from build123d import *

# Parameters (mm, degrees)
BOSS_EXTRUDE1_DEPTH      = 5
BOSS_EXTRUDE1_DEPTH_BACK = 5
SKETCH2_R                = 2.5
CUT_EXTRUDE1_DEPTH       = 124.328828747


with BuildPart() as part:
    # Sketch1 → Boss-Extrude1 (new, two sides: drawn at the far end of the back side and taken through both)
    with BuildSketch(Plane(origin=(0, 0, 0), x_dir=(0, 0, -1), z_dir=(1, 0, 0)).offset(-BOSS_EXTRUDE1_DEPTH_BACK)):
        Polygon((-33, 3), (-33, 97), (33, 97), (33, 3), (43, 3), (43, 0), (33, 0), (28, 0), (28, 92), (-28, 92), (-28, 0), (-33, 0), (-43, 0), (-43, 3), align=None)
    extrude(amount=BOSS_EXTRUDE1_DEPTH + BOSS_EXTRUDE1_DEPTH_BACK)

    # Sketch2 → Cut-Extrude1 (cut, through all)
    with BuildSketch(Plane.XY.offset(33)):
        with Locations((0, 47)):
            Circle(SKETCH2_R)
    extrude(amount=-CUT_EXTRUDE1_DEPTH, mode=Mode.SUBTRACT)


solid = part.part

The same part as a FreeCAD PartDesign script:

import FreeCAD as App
import Part
import Sketcher

V = App.Vector

doc = App.newDocument("Part")
body = doc.addObject("PartDesign::Body", "Body")

# Sketch on YZ plane
sketch1 = doc.addObject("Sketcher::SketchObject", "Sketch")
body.addObject(sketch1)
sketch1.AttachmentSupport = (doc.YZ_Plane, [""])
sketch1.MapMode = "FlatFace"
sketch1.addGeometry(Part.LineSegment(V(97, 33, 0), V(3, 33, 0)), False)
sketch1.addGeometry(Part.LineSegment(V(3, 33, 0), V(3, 43, 0)), False)
sketch1.addGeometry(Part.LineSegment(V(3, 43, 0), V(0, 43, 0)), False)
sketch1.addGeometry(Part.LineSegment(V(0, 43, 0), V(0, 28, 0)), False)
sketch1.addGeometry(Part.LineSegment(V(0, 28, 0), V(92, 28, 0)), False)
sketch1.addGeometry(Part.LineSegment(V(92, 28, 0), V(92, -28, 0)), False)
sketch1.addGeometry(Part.LineSegment(V(92, -28, 0), V(0, -28, 0)), False)
sketch1.addGeometry(Part.LineSegment(V(0, -28, 0), V(0, -43, 0)), False)
sketch1.addGeometry(Part.LineSegment(V(0, -43, 0), V(3, -43, 0)), False)
sketch1.addGeometry(Part.LineSegment(V(3, -43, 0), V(3, -33, 0)), False)
sketch1.addGeometry(Part.LineSegment(V(3, -33, 0), V(97, -33, 0)), False)
sketch1.addGeometry(Part.LineSegment(V(97, -33, 0), V(97, 33, 0)), False)
sketch1.addConstraint(Sketcher.Constraint("Coincident", 0, 2, 1, 1))
sketch1.addConstraint(Sketcher.Constraint("Coincident", 1, 2, 2, 1))
sketch1.addConstraint(Sketcher.Constraint("Coincident", 2, 2, 3, 1))
sketch1.addConstraint(Sketcher.Constraint("Coincident", 3, 2, 4, 1))
sketch1.addConstraint(Sketcher.Constraint("Coincident", 4, 2, 5, 1))
sketch1.addConstraint(Sketcher.Constraint("Coincident", 5, 2, 6, 1))
sketch1.addConstraint(Sketcher.Constraint("Coincident", 6, 2, 7, 1))
sketch1.addConstraint(Sketcher.Constraint("Coincident", 7, 2, 8, 1))
sketch1.addConstraint(Sketcher.Constraint("Coincident", 8, 2, 9, 1))
sketch1.addConstraint(Sketcher.Constraint("Coincident", 9, 2, 10, 1))
sketch1.addConstraint(Sketcher.Constraint("Coincident", 10, 2, 11, 1))
sketch1.addConstraint(Sketcher.Constraint("Coincident", 11, 2, 0, 1))
sketch1.addConstraint(Sketcher.Constraint("Horizontal", 0))
sketch1.addConstraint(Sketcher.Constraint("Vertical", 1))
sketch1.addConstraint(Sketcher.Constraint("Horizontal", 2))
sketch1.addConstraint(Sketcher.Constraint("Vertical", 3))
sketch1.addConstraint(Sketcher.Constraint("Horizontal", 4))
sketch1.addConstraint(Sketcher.Constraint("Vertical", 5))
sketch1.addConstraint(Sketcher.Constraint("Horizontal", 6))
sketch1.addConstraint(Sketcher.Constraint("Vertical", 7))
sketch1.addConstraint(Sketcher.Constraint("Horizontal", 8))
sketch1.addConstraint(Sketcher.Constraint("Vertical", 9))
sketch1.addConstraint(Sketcher.Constraint("Horizontal", 10))
sketch1.addConstraint(Sketcher.Constraint("Vertical", 11))
sketch1.addConstraint(Sketcher.Constraint("Symmetric", 3, 2, 6, 2, -1, 1))
sketch1.addConstraint(Sketcher.Constraint("Symmetric", 2, 2, 7, 2, -1))
sketch1.addConstraint(Sketcher.Constraint("Symmetric", 0, 2, 9, 2, -1))
sketch1.addConstraint(Sketcher.Constraint("DistanceX", 0, 2, 0, 1, 94.0))
sketch1.addConstraint(Sketcher.Constraint("DistanceX", 2, 2, 2, 1, 3.0))
sketch1.addConstraint(Sketcher.Constraint("DistanceX", 4, 1, 4, 2, 92.0))
sketch1.addConstraint(Sketcher.Constraint("DistanceY", 1, 1, 1, 2, 10.0))
sketch1.addConstraint(Sketcher.Constraint("DistanceY", 3, 2, 3, 1, 15.0))
sketch1.addConstraint(Sketcher.Constraint("DistanceY", 5, 2, 5, 1, 56.0))
pad1 = doc.addObject("PartDesign::Pad", "Pad")
body.addObject(pad1)
pad1.Profile = sketch1
pad1.Type = "TwoLengths"
pad1.Length = 5
pad1.Length2 = 5

# Sketch on XY plane
sketch2 = doc.addObject("Sketcher::SketchObject", "Sketch001")
body.addObject(sketch2)
sketch2.AttachmentSupport = (doc.XY_Plane, [""])
sketch2.MapMode = "FlatFace"
sketch2.AttachmentOffset = App.Placement(V(0, 0, 33), App.Rotation())
sketch2.addGeometry(Part.Circle(V(0, 47, 0), V(0, 0, 1), 2.5), False)
sketch2.addConstraint(Sketcher.Constraint("PointOnObject", 0, 3, -2))
sketch2.addConstraint(Sketcher.Constraint("Diameter", 0, 5.0))
sketch2.addConstraint(Sketcher.Constraint("DistanceY", -1, 1, 0, 3, 47.0))
pocket1 = doc.addObject("PartDesign::Pocket", "Pocket")
body.addObject(pocket1)
pocket1.Profile = sketch2
pocket1.Type = "ThroughAll"

doc.recompute()
